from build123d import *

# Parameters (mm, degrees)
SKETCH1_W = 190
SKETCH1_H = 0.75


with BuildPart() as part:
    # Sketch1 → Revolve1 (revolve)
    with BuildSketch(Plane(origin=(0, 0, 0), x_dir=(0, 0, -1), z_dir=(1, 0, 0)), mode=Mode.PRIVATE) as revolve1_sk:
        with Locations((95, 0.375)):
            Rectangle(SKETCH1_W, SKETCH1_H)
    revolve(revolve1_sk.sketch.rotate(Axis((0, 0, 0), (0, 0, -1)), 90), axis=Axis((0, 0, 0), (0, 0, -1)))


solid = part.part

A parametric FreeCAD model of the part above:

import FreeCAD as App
import Part
import Sketcher
from FreeCAD import Vector
Q = App.Units.Quantity


def add_polygon(sketch, points):
    """Adds a closed chain of lines whose ends are joined by coincident constraints."""
    first, n = sketch.GeometryCount, len(points)
    for a, b in zip(points, points[1:] + points[:1]):
        sketch.addGeometry(Part.LineSegment(App.Vector(*a, 0), App.Vector(*b, 0)), False)
    for i in range(n):
        sketch.addConstraint(Sketcher.Constraint("Coincident", first + i, 2, first + (i + 1) % n, 1))

doc = App.newDocument("Part")
body = doc.addObject("PartDesign::Body", "Body")

sketch1 = body.newObject("Sketcher::SketchObject", "Sketch")
sketch1.AttachmentSupport = (doc.getObject("YZ_Plane"), [""])
sketch1.MapMode = "FlatFace"
add_polygon(sketch1, [(0.75, 0), (0, 0), (0, -190), (0.75, -190)])
sketch1.addConstraint([
    Sketcher.Constraint("Horizontal", 0),
    Sketcher.Constraint("Vertical", 1),
    Sketcher.Constraint("Horizontal", 2),
    Sketcher.Constraint("Vertical", 3),
    Sketcher.Constraint("Coincident", 0, 2, -1, 1),
    Sketcher.Constraint("DistanceY", 1, 2, 1, 1, Q("190 mm")),
    Sketcher.Constraint("DistanceX", 0, 2, 0, 1, Q("0.75 mm")),
])
revolution = body.newObject("PartDesign::Revolution", "Revolution")
revolution.Profile = sketch1
revolution.ReferenceAxis = (sketch1, ["V_Axis"])
revolution.Angle = 360

doc.recompute()
